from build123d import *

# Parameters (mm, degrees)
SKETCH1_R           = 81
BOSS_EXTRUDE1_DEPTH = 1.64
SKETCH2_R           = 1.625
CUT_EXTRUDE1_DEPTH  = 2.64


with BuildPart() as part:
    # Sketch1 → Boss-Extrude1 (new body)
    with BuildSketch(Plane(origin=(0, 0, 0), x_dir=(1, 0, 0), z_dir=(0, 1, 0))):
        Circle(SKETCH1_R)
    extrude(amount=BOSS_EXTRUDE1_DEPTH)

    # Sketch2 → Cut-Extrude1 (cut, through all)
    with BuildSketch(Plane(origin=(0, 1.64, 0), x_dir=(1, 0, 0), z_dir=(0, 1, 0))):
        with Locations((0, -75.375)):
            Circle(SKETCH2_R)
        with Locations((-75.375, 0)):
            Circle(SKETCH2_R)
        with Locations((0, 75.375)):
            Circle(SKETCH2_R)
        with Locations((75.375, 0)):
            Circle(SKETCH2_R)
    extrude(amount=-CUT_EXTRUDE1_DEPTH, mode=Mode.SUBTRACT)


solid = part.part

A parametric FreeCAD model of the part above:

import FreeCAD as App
import Part
import Sketcher
from FreeCAD import Vector
Q = App.Units.Quantity

doc = App.newDocument("Part")
params = doc.addObject("Spreadsheet::Sheet", "Params")
for row, (alias, value) in enumerate([
    ("sketch1_diameter", "162 mm"),
    ("pad1_length", "1.64 mm"),
    ("sketch2_diameter", "3.25 mm"),
], start=1):
    params.set(f"A{row}", alias)
    params.set(f"B{row}", "=" + value)
    params.setAlias(f"B{row}", alias)

body = doc.addObject("PartDesign::Body", "Body")

sketch1 = body.newObject("Sketcher::SketchObject", "Sketch")
sketch1.AttachmentSupport = (doc.getObject("XZ_Plane"), [""])
sketch1.MapMode = "FlatFace"
sketch1.addGeometry(Part.Circle(Vector(0, 0, 0), Vector(0, 0, 1), 81), False)
sketch1.addConstraint([
    Sketcher.Constraint("Coincident", 0, 3, -1, 1),
    Sketcher.Constraint("Diameter", 0, Q("162 mm")),
])
sketch1.setExpression("Constraints[1]", "Params.sketch1_diameter")
pad1 = body.newObject("PartDesign::Pad", "Pad")
pad1.Profile = sketch1
pad1.setExpression("Length", "Params.pad1_length")
pad1.Reversed = True

sketch2 = body.newObject("Sketcher::SketchObject", "Sketch001")
sketch2.AttachmentSupport = (doc.getObject("XZ_Plane"), [""])
sketch2.MapMode = "FlatFace"
sketch2.AttachmentOffset = App.Placement(Vector(0, 0, -1.64), App.Rotation())
sketch2.addGeometry([
    Part.Circle(Vector(0, 75.4, 0), Vector(0, 0, 1), 1.6),
    Part.Circle(Vector(-75.4, 0, 0), Vector(0, 0, 1), 1.6),
    Part.Circle(Vector(0, -75.4, 0), Vector(0, 0, 1), 1.6),
    Part.Circle(Vector(75.4, 0, 0), Vector(0, 0, 1), 1.6),
], False)
sketch2.addConstraint([
    Sketcher.Constraint("Equal", 0, 1),
    Sketcher.Constraint("Equal", 1, 2),
    Sketcher.Constraint("Equal", 2, 3),
    Sketcher.Constraint("Symmetric", 0, 3, 2, 3, -1, 1),
    Sketcher.Constraint("Symmetric", 1, 3, 3, 3, -1, 1),
    Sketcher.Constraint("PointOnObject", 0, 3, -2),
    Sketcher.Constraint("PointOnObject", 1, 3, -1),
    Sketcher.Constraint("Diameter", 0, Q("3.25 mm")),
    Sketcher.Constraint("DistanceY", 2, 3, 0, 3, Q("150.75 mm")),
    Sketcher.Constraint("DistanceX", 1, 3, 3, 3, Q("150.75 mm")),
])
sketch2.setExpression("Constraints[7]", "Params.sketch2_diameter")
pocket1 = body.newObject("PartDesign::Pocket", "Pocket")
pocket1.Profile = sketch2
pocket1.Type = "ThroughAll"
pocket1.Reversed = True

doc.recompute()
